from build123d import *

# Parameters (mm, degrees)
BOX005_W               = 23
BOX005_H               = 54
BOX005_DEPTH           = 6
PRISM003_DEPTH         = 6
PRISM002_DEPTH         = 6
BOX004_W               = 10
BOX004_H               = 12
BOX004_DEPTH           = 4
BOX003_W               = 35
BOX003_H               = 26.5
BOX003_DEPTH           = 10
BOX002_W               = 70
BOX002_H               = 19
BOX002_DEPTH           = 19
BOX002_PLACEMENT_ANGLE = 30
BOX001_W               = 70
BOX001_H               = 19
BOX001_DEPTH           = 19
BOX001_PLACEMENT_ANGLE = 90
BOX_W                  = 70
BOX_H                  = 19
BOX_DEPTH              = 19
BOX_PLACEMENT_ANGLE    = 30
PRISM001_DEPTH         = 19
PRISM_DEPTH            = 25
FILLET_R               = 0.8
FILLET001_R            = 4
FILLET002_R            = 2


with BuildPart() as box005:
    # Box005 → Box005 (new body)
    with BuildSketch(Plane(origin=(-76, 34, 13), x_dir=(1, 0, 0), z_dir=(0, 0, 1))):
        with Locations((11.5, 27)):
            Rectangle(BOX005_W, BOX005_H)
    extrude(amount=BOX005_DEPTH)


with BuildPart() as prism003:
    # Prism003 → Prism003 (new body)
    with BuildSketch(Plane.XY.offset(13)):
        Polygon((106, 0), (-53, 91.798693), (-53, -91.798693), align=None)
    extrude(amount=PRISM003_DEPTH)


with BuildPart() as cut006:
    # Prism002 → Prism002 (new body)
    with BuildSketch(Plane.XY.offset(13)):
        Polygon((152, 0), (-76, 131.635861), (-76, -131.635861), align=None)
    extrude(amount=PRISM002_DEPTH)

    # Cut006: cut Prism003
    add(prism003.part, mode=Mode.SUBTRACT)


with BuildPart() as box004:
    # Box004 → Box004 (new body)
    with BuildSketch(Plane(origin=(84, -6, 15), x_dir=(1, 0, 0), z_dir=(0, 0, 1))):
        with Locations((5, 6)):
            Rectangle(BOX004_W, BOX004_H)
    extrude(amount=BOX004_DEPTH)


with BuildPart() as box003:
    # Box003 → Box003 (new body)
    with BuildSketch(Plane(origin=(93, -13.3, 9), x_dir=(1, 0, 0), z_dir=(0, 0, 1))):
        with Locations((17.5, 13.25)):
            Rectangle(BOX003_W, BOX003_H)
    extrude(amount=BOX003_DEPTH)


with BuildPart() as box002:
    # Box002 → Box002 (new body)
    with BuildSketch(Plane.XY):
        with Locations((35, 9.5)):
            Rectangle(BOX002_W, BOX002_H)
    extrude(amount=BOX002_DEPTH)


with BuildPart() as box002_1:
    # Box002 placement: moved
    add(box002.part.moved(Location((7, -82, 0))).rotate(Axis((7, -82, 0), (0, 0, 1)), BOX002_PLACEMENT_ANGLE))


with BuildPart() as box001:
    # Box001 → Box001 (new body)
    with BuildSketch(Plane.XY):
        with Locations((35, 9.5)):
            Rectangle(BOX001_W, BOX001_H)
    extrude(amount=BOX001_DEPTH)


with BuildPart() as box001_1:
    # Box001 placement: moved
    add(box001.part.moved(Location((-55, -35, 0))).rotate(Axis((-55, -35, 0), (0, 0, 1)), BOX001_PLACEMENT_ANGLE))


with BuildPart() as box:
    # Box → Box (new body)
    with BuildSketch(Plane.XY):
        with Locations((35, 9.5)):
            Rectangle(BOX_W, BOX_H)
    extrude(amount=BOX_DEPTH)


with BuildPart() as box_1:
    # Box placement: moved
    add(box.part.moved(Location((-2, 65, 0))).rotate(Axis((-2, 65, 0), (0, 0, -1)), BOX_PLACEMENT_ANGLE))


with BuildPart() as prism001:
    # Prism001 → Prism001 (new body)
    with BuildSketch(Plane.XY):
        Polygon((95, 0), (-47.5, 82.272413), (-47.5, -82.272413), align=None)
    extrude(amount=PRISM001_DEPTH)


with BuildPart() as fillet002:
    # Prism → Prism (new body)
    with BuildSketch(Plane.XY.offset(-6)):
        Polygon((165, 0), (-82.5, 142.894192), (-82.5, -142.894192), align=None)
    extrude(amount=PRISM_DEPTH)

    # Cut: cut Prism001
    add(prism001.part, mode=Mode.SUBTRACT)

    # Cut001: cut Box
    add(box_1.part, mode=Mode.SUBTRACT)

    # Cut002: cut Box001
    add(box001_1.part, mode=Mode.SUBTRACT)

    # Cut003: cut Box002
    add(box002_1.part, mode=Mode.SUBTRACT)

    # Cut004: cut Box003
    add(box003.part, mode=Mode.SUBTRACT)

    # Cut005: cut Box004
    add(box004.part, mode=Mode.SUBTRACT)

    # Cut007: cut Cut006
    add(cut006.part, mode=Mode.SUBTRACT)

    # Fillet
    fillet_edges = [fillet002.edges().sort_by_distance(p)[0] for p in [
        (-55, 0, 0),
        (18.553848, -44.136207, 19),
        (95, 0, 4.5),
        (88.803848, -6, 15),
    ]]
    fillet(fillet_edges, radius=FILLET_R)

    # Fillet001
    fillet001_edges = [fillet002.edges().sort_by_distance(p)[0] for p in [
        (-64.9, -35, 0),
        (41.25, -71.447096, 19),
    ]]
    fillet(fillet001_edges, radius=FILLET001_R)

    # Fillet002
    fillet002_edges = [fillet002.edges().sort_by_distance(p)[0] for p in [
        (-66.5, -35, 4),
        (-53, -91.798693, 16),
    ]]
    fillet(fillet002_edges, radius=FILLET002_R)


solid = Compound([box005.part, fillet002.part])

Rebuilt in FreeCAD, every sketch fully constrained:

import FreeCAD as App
import Part
import Sketcher
Q = App.Units.Quantity


def edges_at(feature, points):
    """Names of the edges that pass closest to the given points."""
    edges = feature.Shape.Edges
    near = lambda p: min(range(len(edges)), key=lambda i: edges[i].distToShape(Part.Vertex(*p))[0])
    return sorted({f"Edge{near(p) + 1}" for p in points})

doc = App.newDocument("Part")
params = doc.addObject("Spreadsheet::Sheet", "Params")
for row, (alias, value) in enumerate([
    ("sketch1_width", "23 mm"),
    ("sketch1_height", "54 mm"),
    ("pad1_length", "6 mm"),
    ("pad2_length", "6 mm"),
    ("pad3_length", "6 mm"),
    ("sketch4_width", "10 mm"),
    ("sketch4_height", "12 mm"),
    ("pad4_length", "4 mm"),
    ("sketch5_width", "35 mm"),
    ("sketch5_height", "26.5 mm"),
    ("pad5_length", "10 mm"),
    ("sketch6_width", "70 mm"),
    ("sketch6_height", "19 mm"),
    ("pad6_length", "19 mm"),
    ("sketch7_width", "70 mm"),
    ("sketch7_height", "19 mm"),
    ("pad7_length", "19 mm"),
    ("sketch8_width", "70 mm"),
    ("sketch8_height", "19 mm"),
    ("pad8_length", "19 mm"),
    ("pad9_length", "19 mm"),
    ("pad10_length", "25 mm"),
    ("fillet_radius", "0.8 mm"),
    ("fillet2_radius", "4 mm"),
    ("fillet3_radius", "2 mm"),
], start=1):
    params.set(f"A{row}", alias)
    params.set(f"B{row}", "=" + value)
    params.setAlias(f"B{row}", alias)

body = doc.addObject("PartDesign::Body", "Body")

# Sketch on XY plane
sketch1 = body.newObject("Sketcher::SketchObject", "Sketch")
sketch1.AttachmentSupport = (doc.getObject("XY_Plane"), [""])
sketch1.MapMode = "FlatFace"
sketch1.AttachmentOffset = App.Placement(App.Vector(0, 0, 13), App.Rotation())
sketch1.addGeometry([
    Part.LineSegment(App.Vector(-76, 88, 0), App.Vector(-76, 34, 0)),
    Part.LineSegment(App.Vector(-76, 34, 0), App.Vector(-53, 34, 0)),
    Part.LineSegment(App.Vector(-53, 34, 0), App.Vector(-53, 88, 0)),
    Part.LineSegment(App.Vector(-53, 88, 0), App.Vector(-76, 88, 0)),
], False)
sketch1.addConstraint([
    Sketcher.Constraint("Coincident", 0, 2, 1, 1),
    Sketcher.Constraint("Coincident", 1, 2, 2, 1),
    Sketcher.Constraint("Coincident", 2, 2, 3, 1),
    Sketcher.Constraint("Coincident", 3, 2, 0, 1),
    Sketcher.Constraint("Vertical", 0),
    Sketcher.Constraint("Horizontal", 1),
    Sketcher.Constraint("Vertical", 2),
    Sketcher.Constraint("Horizontal", 3),
    Sketcher.Constraint("DistanceX", 1, 1, 1, 2, 23.0),
    Sketcher.Constraint("DistanceY", 0, 2, 0, 1, 54.0),
    Sketcher.Constraint("DistanceX", 0, 2, -1, 1, 76.0),
    Sketcher.Constraint("DistanceY", -1, 1, 0, 2, 34.0),
])
sketch1.setExpression("Constraints[8]", "Params.sketch1_width")
sketch1.setExpression("Constraints[9]", "Params.sketch1_height")
pad1 = body.newObject("PartDesign::Pad", "Pad")
pad1.Profile = sketch1
pad1.setExpression("Length", "Params.pad1_length")
body2 = doc.addObject("PartDesign::Body", "Body001")

# Sketch on XY plane
sketch2 = body2.newObject("Sketcher::SketchObject", "Sketch001")
sketch2.AttachmentSupport = (doc.getObject("XY_Plane001"), [""])
sketch2.MapMode = "FlatFace"
sketch2.AttachmentOffset = App.Placement(App.Vector(0, 0, 13), App.Rotation())
sketch2.addGeometry([
    Part.LineSegment(App.Vector(106, 0, 0), App.Vector(-53, 92, 0)),
    Part.LineSegment(App.Vector(-53, 92, 0), App.Vector(-53, -92, 0)),
    Part.LineSegment(App.Vector(-53, -92, 0), App.Vector(106, 0, 0)),
], False)
sketch2.addConstraint([
    Sketcher.Constraint("Coincident", 0, 2, 1, 1),
    Sketcher.Constraint("Coincident", 1, 2, 2, 1),
    Sketcher.Constraint("Coincident", 2, 2, 0, 1),
    Sketcher.Constraint("Vertical", 1),
    Sketcher.Constraint("PointOnObject", 2, 2, -1),
    Sketcher.Constraint("Equal", 0, 2),
    Sketcher.Constraint("Angle", 0, Q("150 deg")),
    Sketcher.Constraint("DistanceX", 0, 2, -1, 1, 53.0),
    Sketcher.Constraint("DistanceX", -1, 1, 2, 2, 106.0),
])
pad2 = body2.newObject("PartDesign::Pad", "Pad001")
pad2.Profile = sketch2
pad2.setExpression("Length", "Params.pad2_length")
body3 = doc.addObject("PartDesign::Body", "Body002")

# Sketch on XY plane
sketch3 = body3.newObject("Sketcher::SketchObject", "Sketch002")
sketch3.AttachmentSupport = (doc.getObject("XY_Plane002"), [""])
sketch3.MapMode = "FlatFace"
sketch3.AttachmentOffset = App.Placement(App.Vector(0, 0, 13), App.Rotation())
sketch3.addGeometry([
    Part.LineSegment(App.Vector(152, 0, 0), App.Vector(-76, 132, 0)),
    Part.LineSegment(App.Vector(-76, 132, 0), App.Vector(-76, -132, 0)),
    Part.LineSegment(App.Vector(-76, -132, 0), App.Vector(152, 0, 0)),
], False)
sketch3.addConstraint([
    Sketcher.Constraint("Coincident", 0, 2, 1, 1),
    Sketcher.Constraint("Coincident", 1, 2, 2, 1),
    Sketcher.Constraint("Coincident", 2, 2, 0, 1),
    Sketcher.Constraint("Vertical", 1),
    Sketcher.Constraint("PointOnObject", 2, 2, -1),
    Sketcher.Constraint("Equal", 0, 2),
    Sketcher.Constraint("Angle", 0, Q("150 deg")),
    Sketcher.Constraint("DistanceX", 0, 2, -1, 1, 76.0),
    Sketcher.Constraint("DistanceX", -1, 1, 2, 2, 152.0),
])
pad3 = body3.newObject("PartDesign::Pad", "Pad002")
pad3.Profile = sketch3
pad3.setExpression("Length", "Params.pad3_length")
doc.recompute()

boolean = body3.newObject("PartDesign::Boolean", "Boolean")
boolean.Type = "Cut"
boolean.addObjects([body2])
body4 = doc.addObject("PartDesign::Body", "Body003")

# Sketch on XY plane
sketch4 = body4.newObject("Sketcher::SketchObject", "Sketch003")
sketch4.AttachmentSupport = (doc.getObject("XY_Plane003"), [""])
sketch4.MapMode = "FlatFace"
sketch4.AttachmentOffset = App.Placement(App.Vector(0, 0, 15), App.Rotation())
sketch4.addGeometry([
    Part.LineSegment(App.Vector(84, 6, 0), App.Vector(84, -6, 0)),
    Part.LineSegment(App.Vector(84, -6, 0), App.Vector(94, -6, 0)),
    Part.LineSegment(App.Vector(94, -6, 0), App.Vector(94, 6, 0)),
    Part.LineSegment(App.Vector(94, 6, 0), App.Vector(84, 6, 0)),
], False)
sketch4.addConstraint([
    Sketcher.Constraint("Coincident", 0, 2, 1, 1),
    Sketcher.Constraint("Coincident", 1, 2, 2, 1),
    Sketcher.Constraint("Coincident", 2, 2, 3, 1),
    Sketcher.Constraint("Coincident", 3, 2, 0, 1),
    Sketcher.Constraint("Vertical", 0),
    Sketcher.Constraint("Horizontal", 1),
    Sketcher.Constraint("Vertical", 2),
    Sketcher.Constraint("Horizontal", 3),
    Sketcher.Constraint("DistanceX", 1, 1, 1, 2, 10.0),
    Sketcher.Constraint("DistanceY", 0, 2, 0, 1, 12.0),
    Sketcher.Constraint("DistanceX", -1, 1, 0, 2, 84.0),
    Sketcher.Constraint("DistanceY", 0, 2, -1, 1, 6.0),
])
sketch4.setExpression("Constraints[8]", "Params.sketch4_width")
sketch4.setExpression("Constraints[9]", "Params.sketch4_height")
pad4 = body4.newObject("PartDesign::Pad", "Pad003")
pad4.Profile = sketch4
pad4.setExpression("Length", "Params.pad4_length")
body5 = doc.addObject("PartDesign::Body", "Body004")

# Sketch on XY plane
sketch5 = body5.newObject("Sketcher::SketchObject", "Sketch004")
sketch5.AttachmentSupport = (doc.getObject("XY_Plane004"), [""])
sketch5.MapMode = "FlatFace"
sketch5.AttachmentOffset = App.Placement(App.Vector(0, 0, 9), App.Rotation())
sketch5.addGeometry([
    Part.LineSegment(App.Vector(93, 13, 0), App.Vector(93, -13, 0)),
    Part.LineSegment(App.Vector(93, -13, 0), App.Vector(128, -13, 0)),
    Part.LineSegment(App.Vector(128, -13, 0), App.Vector(128, 13, 0)),
    Part.LineSegment(App.Vector(128, 13, 0), App.Vector(93, 13, 0)),
], False)
sketch5.addConstraint([
    Sketcher.Constraint("Coincident", 0, 2, 1, 1),
    Sketcher.Constraint("Coincident", 1, 2, 2, 1),
    Sketcher.Constraint("Coincident", 2, 2, 3, 1),
    Sketcher.Constraint("Coincident", 3, 2, 0, 1),
    Sketcher.Constraint("Vertical", 0),
    Sketcher.Constraint("Horizontal", 1),
    Sketcher.Constraint("Vertical", 2),
    Sketcher.Constraint("Horizontal", 3),
    Sketcher.Constraint("DistanceX", 1, 1, 1, 2, 35.0),
    Sketcher.Constraint("DistanceY", 0, 2, 0, 1, 26.5),
    Sketcher.Constraint("DistanceX", -1, 1, 0, 2, 93.0),
    Sketcher.Constraint("DistanceY", 0, 2, -1, 1, 13.3),
])
sketch5.setExpression("Constraints[8]", "Params.sketch5_width")
sketch5.setExpression("Constraints[9]", "Params.sketch5_height")
pad5 = body5.newObject("PartDesign::Pad", "Pad004")
pad5.Profile = sketch5
pad5.setExpression("Length", "Params.pad5_length")
body6 = doc.addObject("PartDesign::Body", "Body005")

# Sketch on XY plane
sketch6 = body6.newObject("Sketcher::SketchObject", "Sketch005")
sketch6.AttachmentSupport = (doc.getObject("XY_Plane005"), [""])
sketch6.MapMode = "FlatFace"
sketch6.addGeometry([
    Part.LineSegment(App.Vector(0, 19, 0), App.Vector(0, 0, 0)),
    Part.LineSegment(App.Vector(0, 0, 0), App.Vector(70, 0, 0)),
    Part.LineSegment(App.Vector(70, 0, 0), App.Vector(70, 19, 0)),
    Part.LineSegment(App.Vector(70, 19, 0), App.Vector(0, 19, 0)),
], False)
sketch6.addConstraint([
    Sketcher.Constraint("Coincident", 0, 2, 1, 1),
    Sketcher.Constraint("Coincident", 1, 2, 2, 1),
    Sketcher.Constraint("Coincident", 2, 2, 3, 1),
    Sketcher.Constraint("Coincident", 3, 2, 0, 1),
    Sketcher.Constraint("Vertical", 0),
    Sketcher.Constraint("Horizontal", 1),
    Sketcher.Constraint("Vertical", 2),
    Sketcher.Constraint("Horizontal", 3),
    Sketcher.Constraint("Coincident", 0, 2, -1, 1),
    Sketcher.Constraint("DistanceX", 1, 1, 1, 2, 70.0),
    Sketcher.Constraint("DistanceY", 0, 2, 0, 1, 19.0),
])
sketch6.setExpression("Constraints[9]", "Params.sketch6_width")
sketch6.setExpression("Constraints[10]", "Params.sketch6_height")
pad6 = body6.newObject("PartDesign::Pad", "Pad005")
pad6.Profile = sketch6
pad6.setExpression("Length", "Params.pad6_length")
body7 = doc.addObject("PartDesign::Body", "Body006")
doc.recompute()

body6.Placement = App.Placement(App.Vector(7, -82, 0), App.Rotation(App.Vector(0, 0, 1), 30))
boolean2 = body7.newObject("PartDesign::Boolean", "Boolean001")
boolean2.Type = "Fuse"
boolean2.addObjects([body6])
body8 = doc.addObject("PartDesign::Body", "Body007")

# Sketch on XY plane
sketch7 = body8.newObject("Sketcher::SketchObject", "Sketch006")
sketch7.AttachmentSupport = (doc.getObject("XY_Plane007"), [""])
sketch7.MapMode = "FlatFace"
sketch7.addGeometry([
    Part.LineSegment(App.Vector(0, 19, 0), App.Vector(0, 0, 0)),
    Part.LineSegment(App.Vector(0, 0, 0), App.Vector(70, 0, 0)),
    Part.LineSegment(App.Vector(70, 0, 0), App.Vector(70, 19, 0)),
    Part.LineSegment(App.Vector(70, 19, 0), App.Vector(0, 19, 0)),
], False)
sketch7.addConstraint([
    Sketcher.Constraint("Coincident", 0, 2, 1, 1),
    Sketcher.Constraint("Coincident", 1, 2, 2, 1),
    Sketcher.Constraint("Coincident", 2, 2, 3, 1),
    Sketcher.Constraint("Coincident", 3, 2, 0, 1),
    Sketcher.Constraint("Vertical", 0),
    Sketcher.Constraint("Horizontal", 1),
    Sketcher.Constraint("Vertical", 2),
    Sketcher.Constraint("Horizontal", 3),
    Sketcher.Constraint("Coincident", 0, 2, -1, 1),
    Sketcher.Constraint("DistanceX", 1, 1, 1, 2, 70.0),
    Sketcher.Constraint("DistanceY", 0, 2, 0, 1, 19.0),
])
sketch7.setExpression("Constraints[9]", "Params.sketch7_width")
sketch7.setExpression("Constraints[10]", "Params.sketch7_height")
pad7 = body8.newObject("PartDesign::Pad", "Pad006")
pad7.Profile = sketch7
pad7.setExpression("Length", "Params.pad7_length")
body9 = doc.addObject("PartDesign::Body", "Body008")
doc.recompute()

body8.Placement = App.Placement(App.Vector(-55, -35, 0), App.Rotation(App.Vector(0, 0, 1), 90))
boolean3 = body9.newObject("PartDesign::Boolean", "Boolean002")
boolean3.Type = "Fuse"
boolean3.addObjects([body8])
body10 = doc.addObject("PartDesign::Body", "Body009")

# Sketch on XY plane
sketch8 = body10.newObject("Sketcher::SketchObject", "Sketch007")
sketch8.AttachmentSupport = (doc.getObject("XY_Plane009"), [""])
sketch8.MapMode = "FlatFace"
sketch8.addGeometry([
    Part.LineSegment(App.Vector(0, 19, 0), App.Vector(0, 0, 0)),
    Part.LineSegment(App.Vector(0, 0, 0), App.Vector(70, 0, 0)),
    Part.LineSegment(App.Vector(70, 0, 0), App.Vector(70, 19, 0)),
    Part.LineSegment(App.Vector(70, 19, 0), App.Vector(0, 19, 0)),
], False)
sketch8.addConstraint([
    Sketcher.Constraint("Coincident", 0, 2, 1, 1),
    Sketcher.Constraint("Coincident", 1, 2, 2, 1),
    Sketcher.Constraint("Coincident", 2, 2, 3, 1),
    Sketcher.Constraint("Coincident", 3, 2, 0, 1),
    Sketcher.Constraint("Vertical", 0),
    Sketcher.Constraint("Horizontal", 1),
    Sketcher.Constraint("Vertical", 2),
    Sketcher.Constraint("Horizontal", 3),
    Sketcher.Constraint("Coincident", 0, 2, -1, 1),
    Sketcher.Constraint("DistanceX", 1, 1, 1, 2, 70.0),
    Sketcher.Constraint("DistanceY", 0, 2, 0, 1, 19.0),
])
sketch8.setExpression("Constraints[9]", "Params.sketch8_width")
sketch8.setExpression("Constraints[10]", "Params.sketch8_height")
pad8 = body10.newObject("PartDesign::Pad", "Pad007")
pad8.Profile = sketch8
pad8.setExpression("Length", "Params.pad8_length")
body11 = doc.addObject("PartDesign::Body", "Body010")
doc.recompute()

body10.Placement = App.Placement(App.Vector(-2, 65, 0), App.Rotation(App.Vector(0, 0, -1), 30))
boolean4 = body11.newObject("PartDesign::Boolean", "Boolean003")
boolean4.Type = "Fuse"
boolean4.addObjects([body10])
body12 = doc.addObject("PartDesign::Body", "Body011")

# Sketch on XY plane
sketch9 = body12.newObject("Sketcher::SketchObject", "Sketch008")
sketch9.AttachmentSupport = (doc.getObject("XY_Plane011"), [""])
sketch9.MapMode = "FlatFace"
sketch9.addGeometry([
    Part.LineSegment(App.Vector(95, 0, 0), App.Vector(-48, 82, 0)),
    Part.LineSegment(App.Vector(-48, 82, 0), App.Vector(-48, -82, 0)),
    Part.LineSegment(App.Vector(-48, -82, 0), App.Vector(95, 0, 0)),
], False)
sketch9.addConstraint([
    Sketcher.Constraint("Coincident", 0, 2, 1, 1),
    Sketcher.Constraint("Coincident", 1, 2, 2, 1),
    Sketcher.Constraint("Coincident", 2, 2, 0, 1),
    Sketcher.Constraint("Vertical", 1),
    Sketcher.Constraint("PointOnObject", 2, 2, -1),
    Sketcher.Constraint("Equal", 0, 2),
    Sketcher.Constraint("Angle", 0, Q("150 deg")),
    Sketcher.Constraint("DistanceX", -1, 1, 2, 2, 95.0),
    Sketcher.Constraint("DistanceX", 0, 2, -1, 1, 47.5),
])
pad9 = body12.newObject("PartDesign::Pad", "Pad008")
pad9.Profile = sketch9
pad9.setExpression("Length", "Params.pad9_length")
body13 = doc.addObject("PartDesign::Body", "Body012")

# Sketch on XY plane
sketch10 = body13.newObject("Sketcher::SketchObject", "Sketch009")
sketch10.AttachmentSupport = (doc.getObject("XY_Plane012"), [""])
sketch10.MapMode = "FlatFace"
sketch10.AttachmentOffset = App.Placement(App.Vector(0, 0, -6), App.Rotation())
sketch10.addGeometry([
    Part.LineSegment(App.Vector(165, 0, 0), App.Vector(-82, 143, 0)),
    Part.LineSegment(App.Vector(-82, 143, 0), App.Vector(-82, -143, 0)),
    Part.LineSegment(App.Vector(-82, -143, 0), App.Vector(165, 0, 0)),
], False)
sketch10.addConstraint([
    Sketcher.Constraint("Coincident", 0, 2, 1, 1),
    Sketcher.Constraint("Coincident", 1, 2, 2, 1),
    Sketcher.Constraint("Coincident", 2, 2, 0, 1),
    Sketcher.Constraint("Vertical", 1),
    Sketcher.Constraint("PointOnObject", 2, 2, -1),
    Sketcher.Constraint("Equal", 0, 2),
    Sketcher.Constraint("Angle", 0, Q("150 deg")),
    Sketcher.Constraint("DistanceX", -1, 1, 2, 2, 165.0),
    Sketcher.Constraint("DistanceX", 0, 2, -1, 1, 82.5),
])
pad10 = body13.newObject("PartDesign::Pad", "Pad009")
pad10.Profile = sketch10
pad10.setExpression("Length", "Params.pad10_length")
doc.recompute()

boolean5 = body13.newObject("PartDesign::Boolean", "Boolean004")
boolean5.Type = "Cut"
boolean5.addObjects([body12])
doc.recompute()

boolean6 = body13.newObject("PartDesign::Boolean", "Boolean005")
boolean6.Type = "Cut"
boolean6.addObjects([body11])
doc.recompute()

boolean7 = body13.newObject("PartDesign::Boolean", "Boolean006")
boolean7.Type = "Cut"
boolean7.addObjects([body9])
doc.recompute()

boolean8 = body13.newObject("PartDesign::Boolean", "Boolean007")
boolean8.Type = "Cut"
boolean8.addObjects([body7])
doc.recompute()

boolean9 = body13.newObject("PartDesign::Boolean", "Boolean008")
boolean9.Type = "Cut"
boolean9.addObjects([body5])
doc.recompute()

boolean10 = body13.newObject("PartDesign::Boolean", "Boolean009")
boolean10.Type = "Cut"
boolean10.addObjects([body4])
doc.recompute()

boolean11 = body13.newObject("PartDesign::Boolean", "Boolean010")
boolean11.Type = "Cut"
boolean11.addObjects([body3])
doc.recompute()

fillet = body13.newObject("PartDesign::Fillet", "Fillet")
fillet.Base = (boolean11, edges_at(boolean11, [
    (-55, 0, 0),
    (18.554, -44.136, 19),
    (95, 0, 4.5),
    (88.804, -6, 15),
]))
fillet.setExpression("Radius", "Params.fillet_radius")
doc.recompute()

fillet2 = body13.newObject("PartDesign::Fillet", "Fillet001")
fillet2.Base = (fillet, edges_at(fillet, [(-64.9, -35, 0), (41.25, -71.447, 19)]))
fillet2.setExpression("Radius", "Params.fillet2_radius")
doc.recompute()

fillet3 = body13.newObject("PartDesign::Fillet", "Fillet002")
fillet3.Base = (fillet2, edges_at(fillet2, [(-66.5, -35, 4), (-53, -91.799, 16)]))
fillet3.setExpression("Radius", "Params.fillet3_radius")

doc.recompute()
